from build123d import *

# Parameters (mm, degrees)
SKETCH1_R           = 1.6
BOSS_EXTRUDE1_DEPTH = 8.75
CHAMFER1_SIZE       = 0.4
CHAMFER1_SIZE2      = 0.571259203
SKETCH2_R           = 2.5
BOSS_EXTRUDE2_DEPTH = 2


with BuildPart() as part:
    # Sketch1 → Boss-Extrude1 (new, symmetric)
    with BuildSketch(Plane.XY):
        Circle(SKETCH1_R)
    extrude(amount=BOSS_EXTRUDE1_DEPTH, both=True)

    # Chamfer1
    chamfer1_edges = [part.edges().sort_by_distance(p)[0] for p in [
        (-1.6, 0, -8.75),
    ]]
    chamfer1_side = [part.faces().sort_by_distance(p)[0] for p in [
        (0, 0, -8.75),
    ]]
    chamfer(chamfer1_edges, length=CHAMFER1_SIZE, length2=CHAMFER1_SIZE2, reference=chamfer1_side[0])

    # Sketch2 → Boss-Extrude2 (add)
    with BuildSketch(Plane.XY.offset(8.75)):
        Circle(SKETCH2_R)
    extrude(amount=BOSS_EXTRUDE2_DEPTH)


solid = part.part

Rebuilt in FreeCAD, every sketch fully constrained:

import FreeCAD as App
import Part
import Sketcher
from FreeCAD import Vector
Q = App.Units.Quantity


def edges_at(feature, points):
    """Names of the edges that pass closest to the given points."""
    edges = feature.Shape.Edges
    near = lambda p: min(range(len(edges)), key=lambda i: edges[i].distToShape(Part.Vertex(*p))[0])
    return sorted({f"Edge{near(p) + 1}" for p in points})

doc = App.newDocument("Part")
body = doc.addObject("PartDesign::Body", "Body")

# Sketch on XY plane
sketch1 = body.newObject("Sketcher::SketchObject", "Sketch")
sketch1.AttachmentSupport = (doc.getObject("XY_Plane"), [""])
sketch1.MapMode = "FlatFace"
sketch1.addGeometry(Part.Circle(Vector(0, 0, 0), Vector(0, 0, 1), 1.6), False)
sketch1.addConstraint([
    Sketcher.Constraint("Coincident", 0, 3, -1, 1),
    Sketcher.Constraint("Diameter", 0, Q("3.2 mm")),
])
pad1 = body.newObject("PartDesign::Pad", "Pad")
pad1.Profile = sketch1
pad1.Length = 17.5
pad1.Midplane = True
doc.recompute()

chamfer = body.newObject("PartDesign::Chamfer", "Chamfer")
chamfer.Base = (pad1, edges_at(pad1, [(-1.6, 0, -8.75)]))
chamfer.ChamferType = "Two distances"
chamfer.Size = 0.4
chamfer.Size2 = 0.571259
chamfer.FlipDirection = True

# Sketch on XY plane
sketch2 = body.newObject("Sketcher::SketchObject", "Sketch001")
sketch2.AttachmentSupport = (doc.getObject("XY_Plane"), [""])
sketch2.MapMode = "FlatFace"
sketch2.AttachmentOffset = App.Placement(Vector(0, 0, 8.75), App.Rotation())
sketch2.addGeometry(Part.Circle(Vector(0, 0, 0), Vector(0, 0, 1), 2.5), False)
sketch2.addConstraint([
    Sketcher.Constraint("Coincident", 0, 3, -1, 1),
    Sketcher.Constraint("Diameter", 0, Q("5 mm")),
])
pad2 = body.newObject("PartDesign::Pad", "Pad001")
pad2.Profile = sketch2
pad2.Length = 2

doc.recompute()
